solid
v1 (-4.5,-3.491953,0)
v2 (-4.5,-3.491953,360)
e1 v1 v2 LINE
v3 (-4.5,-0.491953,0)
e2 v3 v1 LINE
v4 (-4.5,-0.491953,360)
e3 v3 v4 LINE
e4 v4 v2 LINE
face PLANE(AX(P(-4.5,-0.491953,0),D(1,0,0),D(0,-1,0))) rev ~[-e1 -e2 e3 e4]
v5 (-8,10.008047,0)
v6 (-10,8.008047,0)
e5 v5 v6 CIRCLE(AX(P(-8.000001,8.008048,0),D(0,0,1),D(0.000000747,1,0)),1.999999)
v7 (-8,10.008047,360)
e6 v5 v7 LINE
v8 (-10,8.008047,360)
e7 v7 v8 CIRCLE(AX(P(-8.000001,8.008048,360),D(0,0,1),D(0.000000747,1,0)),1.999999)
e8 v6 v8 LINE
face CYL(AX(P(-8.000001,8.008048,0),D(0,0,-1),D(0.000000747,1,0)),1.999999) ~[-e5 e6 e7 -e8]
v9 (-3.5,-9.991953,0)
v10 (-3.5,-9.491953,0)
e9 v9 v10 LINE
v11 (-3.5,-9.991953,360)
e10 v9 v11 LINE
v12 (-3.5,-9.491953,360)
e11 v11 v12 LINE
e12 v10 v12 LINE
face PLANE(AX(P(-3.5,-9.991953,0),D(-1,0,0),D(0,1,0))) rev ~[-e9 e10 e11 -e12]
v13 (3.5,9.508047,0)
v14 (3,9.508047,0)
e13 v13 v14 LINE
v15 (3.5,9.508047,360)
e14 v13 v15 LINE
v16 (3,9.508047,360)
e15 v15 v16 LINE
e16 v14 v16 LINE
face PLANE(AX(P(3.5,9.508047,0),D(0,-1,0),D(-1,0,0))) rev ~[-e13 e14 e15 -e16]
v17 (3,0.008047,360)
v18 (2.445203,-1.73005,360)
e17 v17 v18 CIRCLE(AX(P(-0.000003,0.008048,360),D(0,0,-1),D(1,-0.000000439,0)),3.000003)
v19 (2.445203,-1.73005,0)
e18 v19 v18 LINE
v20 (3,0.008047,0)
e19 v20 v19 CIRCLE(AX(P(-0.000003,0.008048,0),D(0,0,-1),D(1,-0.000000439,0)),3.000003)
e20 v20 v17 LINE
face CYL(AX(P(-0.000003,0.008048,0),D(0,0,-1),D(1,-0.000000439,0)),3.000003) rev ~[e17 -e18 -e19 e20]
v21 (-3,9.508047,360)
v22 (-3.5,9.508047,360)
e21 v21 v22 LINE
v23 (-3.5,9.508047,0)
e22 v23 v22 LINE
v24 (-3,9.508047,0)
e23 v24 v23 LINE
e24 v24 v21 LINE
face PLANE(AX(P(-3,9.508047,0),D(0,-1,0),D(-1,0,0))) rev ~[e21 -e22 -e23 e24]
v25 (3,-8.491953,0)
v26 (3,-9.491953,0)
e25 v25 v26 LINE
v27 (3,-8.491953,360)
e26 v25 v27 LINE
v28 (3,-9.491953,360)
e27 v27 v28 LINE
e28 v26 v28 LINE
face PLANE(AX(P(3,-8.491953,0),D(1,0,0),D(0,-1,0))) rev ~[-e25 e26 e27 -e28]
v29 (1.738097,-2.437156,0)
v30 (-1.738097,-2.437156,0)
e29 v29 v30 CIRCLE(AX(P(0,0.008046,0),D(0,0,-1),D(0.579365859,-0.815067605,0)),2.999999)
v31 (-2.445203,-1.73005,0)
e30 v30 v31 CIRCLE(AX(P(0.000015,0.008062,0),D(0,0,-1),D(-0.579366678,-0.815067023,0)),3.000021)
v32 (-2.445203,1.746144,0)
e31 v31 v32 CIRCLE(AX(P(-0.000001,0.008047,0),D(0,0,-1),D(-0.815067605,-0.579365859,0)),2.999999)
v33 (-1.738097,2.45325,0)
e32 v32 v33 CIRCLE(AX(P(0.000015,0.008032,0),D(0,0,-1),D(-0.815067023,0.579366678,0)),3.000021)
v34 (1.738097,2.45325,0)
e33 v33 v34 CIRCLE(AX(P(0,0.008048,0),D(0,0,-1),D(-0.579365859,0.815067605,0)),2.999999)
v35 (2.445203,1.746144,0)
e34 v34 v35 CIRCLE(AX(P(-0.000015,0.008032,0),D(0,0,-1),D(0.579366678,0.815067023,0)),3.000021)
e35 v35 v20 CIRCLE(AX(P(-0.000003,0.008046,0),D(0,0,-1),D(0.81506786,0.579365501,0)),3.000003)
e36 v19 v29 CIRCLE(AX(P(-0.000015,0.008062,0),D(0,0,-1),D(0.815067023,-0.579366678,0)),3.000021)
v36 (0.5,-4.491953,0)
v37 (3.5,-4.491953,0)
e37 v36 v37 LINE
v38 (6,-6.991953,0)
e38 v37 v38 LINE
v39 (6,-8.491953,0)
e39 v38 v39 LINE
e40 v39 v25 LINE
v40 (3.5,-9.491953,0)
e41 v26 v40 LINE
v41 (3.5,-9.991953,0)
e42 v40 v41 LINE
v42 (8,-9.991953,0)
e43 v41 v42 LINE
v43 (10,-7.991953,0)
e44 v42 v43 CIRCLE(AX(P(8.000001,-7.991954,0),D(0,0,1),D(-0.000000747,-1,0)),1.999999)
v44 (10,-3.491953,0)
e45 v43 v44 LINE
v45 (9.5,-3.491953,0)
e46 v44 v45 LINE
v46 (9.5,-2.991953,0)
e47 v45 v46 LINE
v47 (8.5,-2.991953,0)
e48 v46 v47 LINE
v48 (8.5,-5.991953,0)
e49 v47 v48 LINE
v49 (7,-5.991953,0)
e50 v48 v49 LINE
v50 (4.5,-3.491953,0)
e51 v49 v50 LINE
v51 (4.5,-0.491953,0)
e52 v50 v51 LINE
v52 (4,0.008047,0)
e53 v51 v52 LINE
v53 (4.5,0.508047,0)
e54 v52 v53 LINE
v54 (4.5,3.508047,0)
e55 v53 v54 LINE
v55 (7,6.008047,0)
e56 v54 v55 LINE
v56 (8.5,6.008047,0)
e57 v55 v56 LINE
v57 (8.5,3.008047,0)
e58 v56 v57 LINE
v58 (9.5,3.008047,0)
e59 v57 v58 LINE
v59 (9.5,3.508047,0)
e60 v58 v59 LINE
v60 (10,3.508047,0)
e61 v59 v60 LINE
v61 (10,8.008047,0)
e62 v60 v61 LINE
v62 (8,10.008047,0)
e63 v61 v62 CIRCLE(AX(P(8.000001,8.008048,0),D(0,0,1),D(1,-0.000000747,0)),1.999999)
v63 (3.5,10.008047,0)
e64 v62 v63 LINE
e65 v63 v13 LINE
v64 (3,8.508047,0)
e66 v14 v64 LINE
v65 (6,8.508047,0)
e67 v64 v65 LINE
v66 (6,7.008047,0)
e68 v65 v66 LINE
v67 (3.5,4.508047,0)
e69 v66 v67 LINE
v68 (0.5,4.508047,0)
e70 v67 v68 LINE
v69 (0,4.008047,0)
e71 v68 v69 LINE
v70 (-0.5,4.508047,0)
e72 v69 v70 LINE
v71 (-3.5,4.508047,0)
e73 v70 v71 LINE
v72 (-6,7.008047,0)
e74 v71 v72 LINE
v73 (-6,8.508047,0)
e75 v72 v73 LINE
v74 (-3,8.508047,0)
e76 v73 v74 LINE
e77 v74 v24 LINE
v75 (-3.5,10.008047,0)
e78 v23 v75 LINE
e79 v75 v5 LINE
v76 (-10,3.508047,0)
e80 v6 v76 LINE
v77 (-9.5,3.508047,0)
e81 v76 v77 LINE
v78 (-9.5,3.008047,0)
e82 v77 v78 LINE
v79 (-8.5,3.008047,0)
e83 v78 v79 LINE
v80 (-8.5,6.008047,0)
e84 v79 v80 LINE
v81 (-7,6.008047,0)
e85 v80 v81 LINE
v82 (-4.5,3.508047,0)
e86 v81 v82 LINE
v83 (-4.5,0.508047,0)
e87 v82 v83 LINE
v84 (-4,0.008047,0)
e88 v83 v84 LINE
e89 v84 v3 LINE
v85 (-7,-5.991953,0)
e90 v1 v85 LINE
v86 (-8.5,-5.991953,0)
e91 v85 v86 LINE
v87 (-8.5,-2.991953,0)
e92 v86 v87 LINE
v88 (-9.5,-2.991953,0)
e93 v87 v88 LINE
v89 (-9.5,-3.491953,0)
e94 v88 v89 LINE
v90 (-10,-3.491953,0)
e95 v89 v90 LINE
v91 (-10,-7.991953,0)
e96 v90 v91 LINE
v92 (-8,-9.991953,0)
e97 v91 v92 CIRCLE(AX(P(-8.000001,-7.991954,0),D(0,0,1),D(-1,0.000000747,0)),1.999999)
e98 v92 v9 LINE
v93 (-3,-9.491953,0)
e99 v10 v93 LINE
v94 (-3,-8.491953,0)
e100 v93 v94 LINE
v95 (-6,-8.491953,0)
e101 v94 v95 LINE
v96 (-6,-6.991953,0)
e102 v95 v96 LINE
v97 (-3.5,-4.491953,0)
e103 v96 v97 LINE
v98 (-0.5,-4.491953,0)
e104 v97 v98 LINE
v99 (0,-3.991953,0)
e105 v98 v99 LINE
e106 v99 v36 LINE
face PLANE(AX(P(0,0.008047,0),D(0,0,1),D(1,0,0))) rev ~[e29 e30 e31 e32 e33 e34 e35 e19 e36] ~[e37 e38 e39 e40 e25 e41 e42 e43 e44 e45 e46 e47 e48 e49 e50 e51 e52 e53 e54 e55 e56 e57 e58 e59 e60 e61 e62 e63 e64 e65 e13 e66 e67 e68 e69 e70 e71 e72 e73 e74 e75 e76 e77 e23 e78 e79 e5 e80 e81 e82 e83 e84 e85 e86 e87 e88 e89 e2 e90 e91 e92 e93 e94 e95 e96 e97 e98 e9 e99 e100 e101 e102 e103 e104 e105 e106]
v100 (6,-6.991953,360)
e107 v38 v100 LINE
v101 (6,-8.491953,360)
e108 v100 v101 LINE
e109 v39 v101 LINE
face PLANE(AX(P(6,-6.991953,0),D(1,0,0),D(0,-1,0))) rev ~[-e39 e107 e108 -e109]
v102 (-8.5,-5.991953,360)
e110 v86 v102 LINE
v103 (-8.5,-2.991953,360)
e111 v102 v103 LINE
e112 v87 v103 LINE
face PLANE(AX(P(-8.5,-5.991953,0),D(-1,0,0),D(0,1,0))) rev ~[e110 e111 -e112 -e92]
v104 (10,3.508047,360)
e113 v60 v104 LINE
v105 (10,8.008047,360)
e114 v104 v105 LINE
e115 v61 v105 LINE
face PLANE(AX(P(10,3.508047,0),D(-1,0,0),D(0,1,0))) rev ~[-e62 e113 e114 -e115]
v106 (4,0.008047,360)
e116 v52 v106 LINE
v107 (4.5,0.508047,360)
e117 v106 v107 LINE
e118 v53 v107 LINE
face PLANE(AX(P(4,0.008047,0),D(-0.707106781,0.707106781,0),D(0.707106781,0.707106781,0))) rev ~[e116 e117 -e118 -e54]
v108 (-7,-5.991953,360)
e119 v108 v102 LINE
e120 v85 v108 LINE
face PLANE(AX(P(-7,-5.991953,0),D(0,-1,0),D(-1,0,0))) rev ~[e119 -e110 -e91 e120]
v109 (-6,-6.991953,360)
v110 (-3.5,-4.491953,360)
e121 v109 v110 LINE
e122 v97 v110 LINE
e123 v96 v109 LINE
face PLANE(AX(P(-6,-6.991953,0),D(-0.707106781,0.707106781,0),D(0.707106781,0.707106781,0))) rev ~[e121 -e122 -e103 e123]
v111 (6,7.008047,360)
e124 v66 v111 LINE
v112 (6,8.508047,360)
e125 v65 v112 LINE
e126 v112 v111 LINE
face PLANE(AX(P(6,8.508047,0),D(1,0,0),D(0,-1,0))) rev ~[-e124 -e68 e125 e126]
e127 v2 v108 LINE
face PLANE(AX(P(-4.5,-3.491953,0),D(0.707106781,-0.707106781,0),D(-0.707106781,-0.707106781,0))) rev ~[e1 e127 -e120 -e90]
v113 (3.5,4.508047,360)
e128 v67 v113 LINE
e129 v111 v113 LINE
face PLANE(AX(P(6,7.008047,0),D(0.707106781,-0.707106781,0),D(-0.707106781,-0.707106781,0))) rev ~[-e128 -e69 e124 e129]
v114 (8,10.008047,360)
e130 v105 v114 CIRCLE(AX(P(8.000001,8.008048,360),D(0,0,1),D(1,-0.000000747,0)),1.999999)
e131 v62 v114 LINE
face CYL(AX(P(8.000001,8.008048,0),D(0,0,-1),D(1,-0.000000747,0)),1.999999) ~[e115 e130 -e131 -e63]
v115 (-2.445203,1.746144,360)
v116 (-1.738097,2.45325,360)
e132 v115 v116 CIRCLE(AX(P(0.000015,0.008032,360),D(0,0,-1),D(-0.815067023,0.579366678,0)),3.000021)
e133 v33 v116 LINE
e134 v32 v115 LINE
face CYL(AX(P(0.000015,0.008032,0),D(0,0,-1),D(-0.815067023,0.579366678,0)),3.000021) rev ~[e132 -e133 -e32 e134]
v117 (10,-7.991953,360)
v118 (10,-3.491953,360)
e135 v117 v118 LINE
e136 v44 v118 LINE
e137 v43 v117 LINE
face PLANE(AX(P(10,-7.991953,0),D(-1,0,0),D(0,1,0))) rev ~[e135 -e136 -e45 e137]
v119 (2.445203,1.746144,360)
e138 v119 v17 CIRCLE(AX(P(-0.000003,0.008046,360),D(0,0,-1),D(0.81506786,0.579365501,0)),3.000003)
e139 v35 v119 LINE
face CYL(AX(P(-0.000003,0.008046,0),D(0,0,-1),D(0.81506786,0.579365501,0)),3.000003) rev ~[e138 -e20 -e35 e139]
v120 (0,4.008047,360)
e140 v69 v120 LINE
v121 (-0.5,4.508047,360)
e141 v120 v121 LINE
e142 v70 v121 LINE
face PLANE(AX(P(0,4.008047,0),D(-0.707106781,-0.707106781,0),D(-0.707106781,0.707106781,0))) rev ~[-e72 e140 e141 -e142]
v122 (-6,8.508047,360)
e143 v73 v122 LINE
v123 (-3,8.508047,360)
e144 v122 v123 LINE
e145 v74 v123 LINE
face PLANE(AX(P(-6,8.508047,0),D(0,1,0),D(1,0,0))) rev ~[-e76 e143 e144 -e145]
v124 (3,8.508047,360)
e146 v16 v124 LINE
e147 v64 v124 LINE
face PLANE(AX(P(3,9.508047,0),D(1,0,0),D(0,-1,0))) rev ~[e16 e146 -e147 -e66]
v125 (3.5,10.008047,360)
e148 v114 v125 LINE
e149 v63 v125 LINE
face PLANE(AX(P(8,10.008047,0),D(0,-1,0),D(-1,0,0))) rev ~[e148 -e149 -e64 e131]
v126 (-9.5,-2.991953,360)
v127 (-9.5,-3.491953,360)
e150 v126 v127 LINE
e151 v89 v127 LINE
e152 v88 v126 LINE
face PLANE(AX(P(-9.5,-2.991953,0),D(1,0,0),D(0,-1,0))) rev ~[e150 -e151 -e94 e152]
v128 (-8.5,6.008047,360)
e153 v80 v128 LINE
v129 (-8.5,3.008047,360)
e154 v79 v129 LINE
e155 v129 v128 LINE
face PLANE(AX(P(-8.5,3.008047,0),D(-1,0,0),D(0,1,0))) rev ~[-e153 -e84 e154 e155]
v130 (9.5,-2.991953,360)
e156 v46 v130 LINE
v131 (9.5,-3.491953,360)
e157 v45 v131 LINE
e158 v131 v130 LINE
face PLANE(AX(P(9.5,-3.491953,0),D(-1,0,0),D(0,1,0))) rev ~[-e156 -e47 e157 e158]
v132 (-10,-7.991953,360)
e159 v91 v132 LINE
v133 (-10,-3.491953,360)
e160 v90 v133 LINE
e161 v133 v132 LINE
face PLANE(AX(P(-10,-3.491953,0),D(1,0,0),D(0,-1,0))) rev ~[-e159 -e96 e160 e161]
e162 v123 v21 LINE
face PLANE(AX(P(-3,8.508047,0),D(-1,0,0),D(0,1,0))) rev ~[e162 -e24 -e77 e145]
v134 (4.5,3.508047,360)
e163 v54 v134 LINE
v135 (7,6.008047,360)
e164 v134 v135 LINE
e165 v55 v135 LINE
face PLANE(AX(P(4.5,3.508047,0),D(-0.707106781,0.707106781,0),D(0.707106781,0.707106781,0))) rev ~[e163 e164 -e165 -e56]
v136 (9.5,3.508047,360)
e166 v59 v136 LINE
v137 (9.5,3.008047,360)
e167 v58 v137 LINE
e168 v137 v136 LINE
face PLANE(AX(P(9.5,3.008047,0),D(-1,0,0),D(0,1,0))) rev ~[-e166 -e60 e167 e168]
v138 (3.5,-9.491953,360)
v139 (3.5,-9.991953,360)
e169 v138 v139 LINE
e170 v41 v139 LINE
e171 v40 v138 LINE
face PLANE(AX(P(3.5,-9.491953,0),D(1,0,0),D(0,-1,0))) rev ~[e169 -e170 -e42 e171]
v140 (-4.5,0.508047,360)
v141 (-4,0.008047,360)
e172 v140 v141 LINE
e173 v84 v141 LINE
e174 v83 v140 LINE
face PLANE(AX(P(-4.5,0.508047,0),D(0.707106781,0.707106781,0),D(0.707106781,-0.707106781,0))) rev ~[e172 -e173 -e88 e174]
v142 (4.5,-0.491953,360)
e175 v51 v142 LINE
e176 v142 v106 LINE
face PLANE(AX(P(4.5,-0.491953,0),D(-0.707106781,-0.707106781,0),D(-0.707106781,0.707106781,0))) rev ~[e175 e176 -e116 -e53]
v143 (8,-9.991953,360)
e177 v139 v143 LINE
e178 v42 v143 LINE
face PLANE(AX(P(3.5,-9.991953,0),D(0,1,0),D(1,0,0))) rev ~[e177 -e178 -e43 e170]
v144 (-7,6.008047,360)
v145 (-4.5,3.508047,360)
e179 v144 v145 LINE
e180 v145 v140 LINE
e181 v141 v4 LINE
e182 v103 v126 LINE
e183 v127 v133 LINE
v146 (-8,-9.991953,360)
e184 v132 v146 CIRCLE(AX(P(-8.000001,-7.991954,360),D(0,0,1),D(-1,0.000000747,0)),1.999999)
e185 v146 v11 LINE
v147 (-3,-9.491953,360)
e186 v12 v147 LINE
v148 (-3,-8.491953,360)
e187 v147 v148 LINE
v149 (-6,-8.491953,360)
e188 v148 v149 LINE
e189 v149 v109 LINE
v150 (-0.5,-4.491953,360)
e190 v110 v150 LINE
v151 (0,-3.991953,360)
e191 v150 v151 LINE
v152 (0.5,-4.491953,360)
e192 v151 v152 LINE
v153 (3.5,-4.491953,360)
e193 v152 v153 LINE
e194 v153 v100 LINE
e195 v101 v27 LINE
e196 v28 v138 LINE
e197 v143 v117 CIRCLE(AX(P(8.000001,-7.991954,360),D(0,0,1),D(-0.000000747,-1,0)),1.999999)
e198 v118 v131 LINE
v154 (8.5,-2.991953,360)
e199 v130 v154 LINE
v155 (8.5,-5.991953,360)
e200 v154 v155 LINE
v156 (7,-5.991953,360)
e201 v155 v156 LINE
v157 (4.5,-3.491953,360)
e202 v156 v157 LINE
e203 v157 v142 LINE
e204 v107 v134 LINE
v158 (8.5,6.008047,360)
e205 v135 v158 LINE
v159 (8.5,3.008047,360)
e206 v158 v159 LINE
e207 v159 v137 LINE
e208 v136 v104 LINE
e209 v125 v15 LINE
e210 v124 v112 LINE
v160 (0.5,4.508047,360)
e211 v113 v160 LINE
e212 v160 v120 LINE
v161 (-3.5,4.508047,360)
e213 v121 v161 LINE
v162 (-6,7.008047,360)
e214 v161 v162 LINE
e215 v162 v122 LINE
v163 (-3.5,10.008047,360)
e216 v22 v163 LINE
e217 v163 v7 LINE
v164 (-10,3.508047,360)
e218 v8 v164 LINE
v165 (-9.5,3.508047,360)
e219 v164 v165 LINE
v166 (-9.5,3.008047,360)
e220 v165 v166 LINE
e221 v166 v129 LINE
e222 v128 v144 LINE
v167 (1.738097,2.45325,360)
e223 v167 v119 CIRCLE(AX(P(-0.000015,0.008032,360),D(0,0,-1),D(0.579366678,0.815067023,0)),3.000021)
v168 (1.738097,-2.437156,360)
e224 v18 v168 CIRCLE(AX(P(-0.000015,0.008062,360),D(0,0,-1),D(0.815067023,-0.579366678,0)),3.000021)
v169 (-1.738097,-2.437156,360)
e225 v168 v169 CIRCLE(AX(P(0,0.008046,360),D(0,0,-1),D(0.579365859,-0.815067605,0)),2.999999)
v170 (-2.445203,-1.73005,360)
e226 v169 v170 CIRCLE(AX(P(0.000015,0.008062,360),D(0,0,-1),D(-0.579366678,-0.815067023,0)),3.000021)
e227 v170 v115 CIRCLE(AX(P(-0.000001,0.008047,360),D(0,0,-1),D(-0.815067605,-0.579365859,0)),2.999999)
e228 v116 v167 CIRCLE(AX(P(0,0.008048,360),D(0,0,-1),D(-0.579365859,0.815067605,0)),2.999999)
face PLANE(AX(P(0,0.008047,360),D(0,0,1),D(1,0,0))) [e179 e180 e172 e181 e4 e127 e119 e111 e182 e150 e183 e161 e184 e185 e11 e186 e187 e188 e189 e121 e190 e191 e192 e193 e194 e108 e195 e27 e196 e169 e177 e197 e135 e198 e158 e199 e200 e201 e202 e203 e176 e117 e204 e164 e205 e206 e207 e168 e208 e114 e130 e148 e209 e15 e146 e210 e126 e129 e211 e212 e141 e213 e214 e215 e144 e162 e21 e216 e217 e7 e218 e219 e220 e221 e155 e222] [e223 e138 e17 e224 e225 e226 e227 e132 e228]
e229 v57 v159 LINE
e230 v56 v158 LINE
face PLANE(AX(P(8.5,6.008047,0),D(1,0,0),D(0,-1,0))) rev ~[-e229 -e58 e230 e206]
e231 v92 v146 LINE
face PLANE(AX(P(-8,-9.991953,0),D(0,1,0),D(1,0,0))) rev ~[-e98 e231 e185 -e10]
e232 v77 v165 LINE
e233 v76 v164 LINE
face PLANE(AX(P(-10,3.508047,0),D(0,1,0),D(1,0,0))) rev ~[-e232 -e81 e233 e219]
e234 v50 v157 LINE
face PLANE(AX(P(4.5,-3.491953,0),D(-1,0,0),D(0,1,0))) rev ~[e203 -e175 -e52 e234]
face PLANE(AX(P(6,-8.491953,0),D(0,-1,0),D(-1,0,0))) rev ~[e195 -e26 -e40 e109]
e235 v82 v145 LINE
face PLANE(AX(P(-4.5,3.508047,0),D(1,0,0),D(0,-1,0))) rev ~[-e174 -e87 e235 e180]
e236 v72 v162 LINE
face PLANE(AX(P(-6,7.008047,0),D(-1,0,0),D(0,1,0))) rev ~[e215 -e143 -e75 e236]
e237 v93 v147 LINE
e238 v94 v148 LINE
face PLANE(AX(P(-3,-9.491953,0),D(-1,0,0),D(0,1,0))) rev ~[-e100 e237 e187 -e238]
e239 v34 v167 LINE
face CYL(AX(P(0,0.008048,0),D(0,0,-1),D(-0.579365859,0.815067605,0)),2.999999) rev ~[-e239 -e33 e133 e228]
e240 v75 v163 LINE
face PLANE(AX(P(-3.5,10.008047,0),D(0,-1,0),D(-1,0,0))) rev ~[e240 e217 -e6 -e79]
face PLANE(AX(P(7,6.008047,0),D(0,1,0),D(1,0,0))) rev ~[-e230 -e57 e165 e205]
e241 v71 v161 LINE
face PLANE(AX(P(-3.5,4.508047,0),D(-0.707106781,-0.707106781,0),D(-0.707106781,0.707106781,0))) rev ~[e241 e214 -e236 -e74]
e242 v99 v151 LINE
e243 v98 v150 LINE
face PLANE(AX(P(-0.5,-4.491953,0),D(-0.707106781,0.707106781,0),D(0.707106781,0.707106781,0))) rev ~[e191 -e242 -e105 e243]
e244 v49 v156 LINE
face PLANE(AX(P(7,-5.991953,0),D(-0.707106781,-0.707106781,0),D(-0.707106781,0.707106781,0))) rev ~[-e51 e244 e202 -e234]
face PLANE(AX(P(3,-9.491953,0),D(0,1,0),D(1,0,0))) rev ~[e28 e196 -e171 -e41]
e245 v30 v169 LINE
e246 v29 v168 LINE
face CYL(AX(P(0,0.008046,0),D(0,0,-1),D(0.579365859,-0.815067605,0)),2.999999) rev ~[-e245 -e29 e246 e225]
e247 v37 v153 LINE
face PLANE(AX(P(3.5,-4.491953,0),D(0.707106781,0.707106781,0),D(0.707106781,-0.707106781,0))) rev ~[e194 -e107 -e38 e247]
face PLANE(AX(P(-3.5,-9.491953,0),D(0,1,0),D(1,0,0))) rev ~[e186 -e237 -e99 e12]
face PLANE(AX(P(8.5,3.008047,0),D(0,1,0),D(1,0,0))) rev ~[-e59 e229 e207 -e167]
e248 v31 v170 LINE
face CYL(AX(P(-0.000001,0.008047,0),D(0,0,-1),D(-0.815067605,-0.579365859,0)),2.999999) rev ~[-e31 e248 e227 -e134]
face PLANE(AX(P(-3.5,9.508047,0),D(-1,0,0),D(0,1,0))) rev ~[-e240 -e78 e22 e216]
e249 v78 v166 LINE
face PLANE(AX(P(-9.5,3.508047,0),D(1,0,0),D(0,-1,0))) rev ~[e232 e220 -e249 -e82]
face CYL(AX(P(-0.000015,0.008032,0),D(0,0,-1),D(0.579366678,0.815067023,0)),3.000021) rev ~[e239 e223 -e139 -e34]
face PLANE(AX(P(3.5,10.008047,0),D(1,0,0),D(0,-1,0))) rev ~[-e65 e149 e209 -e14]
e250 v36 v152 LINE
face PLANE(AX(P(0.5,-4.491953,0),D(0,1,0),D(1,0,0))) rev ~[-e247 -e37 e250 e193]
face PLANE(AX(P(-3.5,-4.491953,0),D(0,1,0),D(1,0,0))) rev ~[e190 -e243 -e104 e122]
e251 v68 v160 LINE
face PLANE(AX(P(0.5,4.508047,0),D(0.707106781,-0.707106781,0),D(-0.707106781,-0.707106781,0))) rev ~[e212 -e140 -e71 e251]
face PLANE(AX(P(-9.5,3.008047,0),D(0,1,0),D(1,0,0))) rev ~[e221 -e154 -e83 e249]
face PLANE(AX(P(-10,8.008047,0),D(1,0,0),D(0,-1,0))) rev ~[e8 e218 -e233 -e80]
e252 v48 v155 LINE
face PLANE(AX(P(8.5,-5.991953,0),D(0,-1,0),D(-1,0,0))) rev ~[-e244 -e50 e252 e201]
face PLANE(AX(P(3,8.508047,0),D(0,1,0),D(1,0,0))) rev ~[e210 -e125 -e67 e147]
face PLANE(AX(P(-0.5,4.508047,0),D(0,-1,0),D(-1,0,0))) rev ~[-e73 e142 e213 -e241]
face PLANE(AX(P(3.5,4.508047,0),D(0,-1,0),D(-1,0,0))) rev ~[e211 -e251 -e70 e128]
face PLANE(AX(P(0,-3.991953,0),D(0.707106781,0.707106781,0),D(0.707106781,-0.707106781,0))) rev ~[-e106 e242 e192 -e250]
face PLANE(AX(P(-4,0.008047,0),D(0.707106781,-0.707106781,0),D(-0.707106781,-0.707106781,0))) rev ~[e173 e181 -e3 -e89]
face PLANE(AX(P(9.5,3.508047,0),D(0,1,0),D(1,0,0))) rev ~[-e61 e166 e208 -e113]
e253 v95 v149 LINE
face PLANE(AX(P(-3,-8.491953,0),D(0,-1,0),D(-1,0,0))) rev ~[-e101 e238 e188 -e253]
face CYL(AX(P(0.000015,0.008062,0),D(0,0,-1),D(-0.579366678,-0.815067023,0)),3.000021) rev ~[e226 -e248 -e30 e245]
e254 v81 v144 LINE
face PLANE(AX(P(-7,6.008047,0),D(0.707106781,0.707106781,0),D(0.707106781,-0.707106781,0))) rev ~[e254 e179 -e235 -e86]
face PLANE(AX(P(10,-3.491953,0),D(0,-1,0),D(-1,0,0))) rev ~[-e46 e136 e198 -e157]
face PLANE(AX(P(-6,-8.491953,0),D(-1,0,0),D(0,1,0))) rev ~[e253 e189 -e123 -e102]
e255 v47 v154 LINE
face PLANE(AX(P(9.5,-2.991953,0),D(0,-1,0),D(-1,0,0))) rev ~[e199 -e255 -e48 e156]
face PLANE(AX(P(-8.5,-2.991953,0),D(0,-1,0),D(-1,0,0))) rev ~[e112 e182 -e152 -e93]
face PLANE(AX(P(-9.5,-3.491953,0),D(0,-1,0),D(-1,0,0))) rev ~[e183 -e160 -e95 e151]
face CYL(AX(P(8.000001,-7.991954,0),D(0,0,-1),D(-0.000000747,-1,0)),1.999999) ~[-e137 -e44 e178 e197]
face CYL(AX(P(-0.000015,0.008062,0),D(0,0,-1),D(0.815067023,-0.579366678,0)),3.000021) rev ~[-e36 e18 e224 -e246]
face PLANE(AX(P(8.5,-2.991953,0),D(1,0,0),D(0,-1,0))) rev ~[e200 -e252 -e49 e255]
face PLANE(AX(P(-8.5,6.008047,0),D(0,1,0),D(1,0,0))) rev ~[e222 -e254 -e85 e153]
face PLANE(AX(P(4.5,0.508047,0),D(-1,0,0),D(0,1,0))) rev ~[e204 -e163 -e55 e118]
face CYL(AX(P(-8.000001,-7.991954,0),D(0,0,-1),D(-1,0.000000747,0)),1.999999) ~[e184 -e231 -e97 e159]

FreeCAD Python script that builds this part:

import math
import FreeCAD as App
import Part
import Sketcher

V = App.Vector
Q = App.Units.Quantity

doc = App.newDocument("Part")
body = doc.addObject("PartDesign::Body", "Body")

sketch1 = doc.addObject("Sketcher::SketchObject", "Sketch")
body.addObject(sketch1)
sketch1.AttachmentSupport = (doc.XY_Plane, [""])
sketch1.MapMode = "FlatFace"
sketch1.addGeometry(Part.ArcOfCircle(Part.Circle(V(-8.000001, -7.991954, 0), V(0, 0, 1), 1.999999), math.radians(179.999957), math.radians(270.000043)), False)
sketch1.addGeometry(Part.LineSegment(V(-8, -9.991953, 0), V(-3.5, -9.991953, 0)), False)
sketch1.addGeometry(Part.LineSegment(V(-3.5, -9.991953, 0), V(-3.5, -9.491953, 0)), False)
sketch1.addGeometry(Part.LineSegment(V(-3.5, -9.491953, 0), V(-3, -9.491953, 0)), False)
sketch1.addGeometry(Part.LineSegment(V(-3, -9.491953, 0), V(-3, -8.491953, 0)), False)
sketch1.addGeometry(Part.LineSegment(V(-3, -8.491953, 0), V(-6, -8.491953, 0)), False)
sketch1.addGeometry(Part.LineSegment(V(-6, -8.491953, 0), V(-6, -6.991953, 0)), False)
sketch1.addGeometry(Part.LineSegment(V(-6, -6.991953, 0), V(-3.5, -4.491953, 0)), False)
sketch1.addGeometry(Part.LineSegment(V(-3.5, -4.491953, 0), V(-0.5, -4.491953, 0)), False)
sketch1.addGeometry(Part.LineSegment(V(-0.5, -4.491953, 0), V(0, -3.991953, 0)), False)
sketch1.addGeometry(Part.LineSegment(V(0, -3.991953, 0), V(0.5, -4.491953, 0)), False)
sketch1.addGeometry(Part.LineSegment(V(0.5, -4.491953, 0), V(3.5, -4.491953, 0)), False)
sketch1.addGeometry(Part.LineSegment(V(3.5, -4.491953, 0), V(6, -6.991953, 0)), False)
sketch1.addGeometry(Part.LineSegment(V(6, -6.991953, 0), V(6, -8.491953, 0)), False)
sketch1.addGeometry(Part.LineSegment(V(6, -8.491953, 0), V(3, -8.491953, 0)), False)
sketch1.addGeometry(Part.LineSegment(V(3, -8.491953, 0), V(3, -9.491953, 0)), False)
sketch1.addGeometry(Part.LineSegment(V(3, -9.491953, 0), V(3.5, -9.491953, 0)), False)
sketch1.addGeometry(Part.LineSegment(V(3.5, -9.491953, 0), V(3.5, -9.991953, 0)), False)
sketch1.addGeometry(Part.LineSegment(V(3.5, -9.991953, 0), V(8, -9.991953, 0)), False)
sketch1.addGeometry(Part.ArcOfCircle(Part.Circle(V(8.000001, -7.991954, 0), V(0, 0, 1), 1.999999), math.radians(-90.000043), math.radians(0.000043)), False)
sketch1.addGeometry(Part.LineSegment(V(10, -7.991953, 0), V(10, -3.491953, 0)), False)
sketch1.addGeometry(Part.LineSegment(V(10, -3.491953, 0), V(9.5, -3.491953, 0)), False)
sketch1.addGeometry(Part.LineSegment(V(9.5, -3.491953, 0), V(9.5, -2.991953, 0)), False)
sketch1.addGeometry(Part.LineSegment(V(9.5, -2.991953, 0), V(8.5, -2.991953, 0)), False)
sketch1.addGeometry(Part.LineSegment(V(8.5, -2.991953, 0), V(8.5, -5.991953, 0)), False)
sketch1.addGeometry(Part.LineSegment(V(8.5, -5.991953, 0), V(7, -5.991953, 0)), False)
sketch1.addGeometry(Part.LineSegment(V(7, -5.991953, 0), V(4.5, -3.491953, 0)), False)
sketch1.addGeometry(Part.LineSegment(V(4.5, -3.491953, 0), V(4.5, -0.491953, 0)), False)
sketch1.addGeometry(Part.LineSegment(V(4.5, -0.491953, 0), V(4, 0.008047, 0)), False)
sketch1.addGeometry(Part.LineSegment(V(4, 0.008047, 0), V(4.5, 0.508047, 0)), False)
sketch1.addGeometry(Part.LineSegment(V(4.5, 0.508047, 0), V(4.5, 3.508047, 0)), False)
sketch1.addGeometry(Part.LineSegment(V(4.5, 3.508047, 0), V(7, 6.008047, 0)), False)
sketch1.addGeometry(Part.LineSegment(V(7, 6.008047, 0), V(8.5, 6.008047, 0)), False)
sketch1.addGeometry(Part.LineSegment(V(8.5, 6.008047, 0), V(8.5, 3.008047, 0)), False)
sketch1.addGeometry(Part.LineSegment(V(8.5, 3.008047, 0), V(9.5, 3.008047, 0)), False)
sketch1.addGeometry(Part.LineSegment(V(9.5, 3.008047, 0), V(9.5, 3.508047, 0)), False)
sketch1.addGeometry(Part.LineSegment(V(9.5, 3.508047, 0), V(10, 3.508047, 0)), False)
sketch1.addGeometry(Part.LineSegment(V(10, 3.508047, 0), V(10, 8.008047, 0)), False)
sketch1.addGeometry(Part.ArcOfCircle(Part.Circle(V(8.000001, 8.008048, 0), V(0, 0, 1), 1.999999), math.radians(-0.000043), math.radians(90.000043)), False)
sketch1.addGeometry(Part.LineSegment(V(8, 10.008047, 0), V(3.5, 10.008047, 0)), False)
sketch1.addGeometry(Part.LineSegment(V(3.5, 10.008047, 0), V(3.5, 9.508047, 0)), False)
sketch1.addGeometry(Part.LineSegment(V(3.5, 9.508047, 0), V(3, 9.508047, 0)), False)
sketch1.addGeometry(Part.LineSegment(V(3, 9.508047, 0), V(3, 8.508047, 0)), False)
sketch1.addGeometry(Part.LineSegment(V(3, 8.508047, 0), V(6, 8.508047, 0)), False)
sketch1.addGeometry(Part.LineSegment(V(6, 8.508047, 0), V(6, 7.008047, 0)), False)
sketch1.addGeometry(Part.LineSegment(V(6, 7.008047, 0), V(3.5, 4.508047, 0)), False)
sketch1.addGeometry(Part.LineSegment(V(3.5, 4.508047, 0), V(0.5, 4.508047, 0)), False)
sketch1.addGeometry(Part.LineSegment(V(0.5, 4.508047, 0), V(0, 4.008047, 0)), False)
sketch1.addGeometry(Part.LineSegment(V(0, 4.008047, 0), V(-0.5, 4.508047, 0)), False)
sketch1.addGeometry(Part.LineSegment(V(-0.5, 4.508047, 0), V(-3.5, 4.508047, 0)), False)
sketch1.addGeometry(Part.LineSegment(V(-3.5, 4.508047, 0), V(-6, 7.008047, 0)), False)
sketch1.addGeometry(Part.LineSegment(V(-6, 7.008047, 0), V(-6, 8.508047, 0)), False)
sketch1.addGeometry(Part.LineSegment(V(-6, 8.508047, 0), V(-3, 8.508047, 0)), False)
sketch1.addGeometry(Part.LineSegment(V(-3, 8.508047, 0), V(-3, 9.508047, 0)), False)
sketch1.addGeometry(Part.LineSegment(V(-3, 9.508047, 0), V(-3.5, 9.508047, 0)), False)
sketch1.addGeometry(Part.LineSegment(V(-3.5, 9.508047, 0), V(-3.5, 10.008047, 0)), False)
sketch1.addGeometry(Part.LineSegment(V(-3.5, 10.008047, 0), V(-8, 10.008047, 0)), False)
sketch1.addGeometry(Part.ArcOfCircle(Part.Circle(V(-8.000001, 8.008048, 0), V(0, 0, 1), 1.999999), math.radians(89.999957), math.radians(180.000043)), False)
sketch1.addGeometry(Part.LineSegment(V(-10, 8.008047, 0), V(-10, 3.508047, 0)), False)
sketch1.addGeometry(Part.LineSegment(V(-10, 3.508047, 0), V(-9.5, 3.508047, 0)), False)
sketch1.addGeometry(Part.LineSegment(V(-9.5, 3.508047, 0), V(-9.5, 3.008047, 0)), False)
sketch1.addGeometry(Part.LineSegment(V(-9.5, 3.008047, 0), V(-8.5, 3.008047, 0)), False)
sketch1.addGeometry(Part.LineSegment(V(-8.5, 3.008047, 0), V(-8.5, 6.008047, 0)), False)
sketch1.addGeometry(Part.LineSegment(V(-8.5, 6.008047, 0), V(-7, 6.008047, 0)), False)
sketch1.addGeometry(Part.LineSegment(V(-7, 6.008047, 0), V(-4.5, 3.508047, 0)), False)
sketch1.addGeometry(Part.LineSegment(V(-4.5, 3.508047, 0), V(-4.5, 0.508047, 0)), False)
sketch1.addGeometry(Part.LineSegment(V(-4.5, 0.508047, 0), V(-4, 0.008047, 0)), False)
sketch1.addGeometry(Part.LineSegment(V(-4, 0.008047, 0), V(-4.5, -0.491953, 0)), False)
sketch1.addGeometry(Part.LineSegment(V(-4.5, -0.491953, 0), V(-4.5, -3.491953, 0)), False)
sketch1.addGeometry(Part.LineSegment(V(-4.5, -3.491953, 0), V(-7, -5.991953, 0)), False)
sketch1.addGeometry(Part.LineSegment(V(-7, -5.991953, 0), V(-8.5, -5.991953, 0)), False)
sketch1.addGeometry(Part.LineSegment(V(-8.5, -5.991953, 0), V(-8.5, -2.991953, 0)), False)
sketch1.addGeometry(Part.LineSegment(V(-8.5, -2.991953, 0), V(-9.5, -2.991953, 0)), False)
sketch1.addGeometry(Part.LineSegment(V(-9.5, -2.991953, 0), V(-9.5, -3.491953, 0)), False)
sketch1.addGeometry(Part.LineSegment(V(-9.5, -3.491953, 0), V(-10, -3.491953, 0)), False)
sketch1.addGeometry(Part.LineSegment(V(-10, -3.491953, 0), V(-10, -7.991953, 0)), False)
sketch1.addGeometry(Part.ArcOfCircle(Part.Circle(V(-0.000015, 0.008032, 0), V(0, 0, 1), 3.000021), math.radians(35.40601), math.radians(54.59399)), False)
sketch1.addGeometry(Part.ArcOfCircle(Part.Circle(V(-0.000003, 0.008046, 0), V(0, 0, 1), 3.000003), math.radians(0.000025), math.radians(35.405928)), False)
sketch1.addGeometry(Part.ArcOfCircle(Part.Circle(V(-0.000003, 0.008048, 0), V(0, 0, 1), 3.000003), math.radians(-35.405928), math.radians(-0.000025)), False)
sketch1.addGeometry(Part.ArcOfCircle(Part.Circle(V(-0.000015, 0.008062, 0), V(0, 0, 1), 3.000021), math.radians(-54.59399), math.radians(-35.40601)), False)
sketch1.addGeometry(Part.ArcOfCircle(Part.Circle(V(0, 0.008046, 0), V(0, 0, 1), 2.999999), math.radians(-125.405953), math.radians(-54.594047)), False)
sketch1.addGeometry(Part.ArcOfCircle(Part.Circle(V(0.000015, 0.008062, 0), V(0, 0, 1), 3.000021), math.radians(-144.59399), math.radians(-125.40601)), False)
sketch1.addGeometry(Part.ArcOfCircle(Part.Circle(V(-0.000001, 0.008047, 0), V(0, 0, 1), 2.999999), math.radians(144.594047), math.radians(215.405953)), False)
sketch1.addGeometry(Part.ArcOfCircle(Part.Circle(V(0.000015, 0.008032, 0), V(0, 0, 1), 3.000021), math.radians(125.40601), math.radians(144.59399)), False)
sketch1.addGeometry(Part.ArcOfCircle(Part.Circle(V(0, 0.008048, 0), V(0, 0, 1), 2.999999), math.radians(54.594047), math.radians(125.405953)), False)
sketch1.addConstraint(Sketcher.Constraint("Coincident", 0, 2, 1, 1))
sketch1.addConstraint(Sketcher.Constraint("Coincident", 1, 2, 2, 1))
sketch1.addConstraint(Sketcher.Constraint("Coincident", 2, 2, 3, 1))
sketch1.addConstraint(Sketcher.Constraint("Coincident", 3, 2, 4, 1))
sketch1.addConstraint(Sketcher.Constraint("Coincident", 4, 2, 5, 1))
sketch1.addConstraint(Sketcher.Constraint("Coincident", 5, 2, 6, 1))
sketch1.addConstraint(Sketcher.Constraint("Coincident", 6, 2, 7, 1))
sketch1.addConstraint(Sketcher.Constraint("Coincident", 7, 2, 8, 1))
sketch1.addConstraint(Sketcher.Constraint("Coincident", 8, 2, 9, 1))
sketch1.addConstraint(Sketcher.Constraint("Coincident", 9, 2, 10, 1))
sketch1.addConstraint(Sketcher.Constraint("Coincident", 10, 2, 11, 1))
sketch1.addConstraint(Sketcher.Constraint("Coincident", 11, 2, 12, 1))
sketch1.addConstraint(Sketcher.Constraint("Coincident", 12, 2, 13, 1))
sketch1.addConstraint(Sketcher.Constraint("Coincident", 13, 2, 14, 1))
sketch1.addConstraint(Sketcher.Constraint("Coincident", 14, 2, 15, 1))
sketch1.addConstraint(Sketcher.Constraint("Coincident", 15, 2, 16, 1))
sketch1.addConstraint(Sketcher.Constraint("Coincident", 16, 2, 17, 1))
sketch1.addConstraint(Sketcher.Constraint("Coincident", 17, 2, 18, 1))
sketch1.addConstraint(Sketcher.Constraint("Coincident", 18, 2, 19, 1))
sketch1.addConstraint(Sketcher.Constraint("Coincident", 19, 2, 20, 1))
sketch1.addConstraint(Sketcher.Constraint("Coincident", 20, 2, 21, 1))
sketch1.addConstraint(Sketcher.Constraint("Coincident", 21, 2, 22, 1))
sketch1.addConstraint(Sketcher.Constraint("Coincident", 22, 2, 23, 1))
sketch1.addConstraint(Sketcher.Constraint("Coincident", 23, 2, 24, 1))
sketch1.addConstraint(Sketcher.Constraint("Coincident", 24, 2, 25, 1))
sketch1.addConstraint(Sketcher.Constraint("Coincident", 25, 2, 26, 1))
sketch1.addConstraint(Sketcher.Constraint("Coincident", 26, 2, 27, 1))
sketch1.addConstraint(Sketcher.Constraint("Coincident", 27, 2, 28, 1))
sketch1.addConstraint(Sketcher.Constraint("Coincident", 28, 2, 29, 1))
sketch1.addConstraint(Sketcher.Constraint("Coincident", 29, 2, 30, 1))
sketch1.addConstraint(Sketcher.Constraint("Coincident", 30, 2, 31, 1))
sketch1.addConstraint(Sketcher.Constraint("Coincident", 31, 2, 32, 1))
sketch1.addConstraint(Sketcher.Constraint("Coincident", 32, 2, 33, 1))
sketch1.addConstraint(Sketcher.Constraint("Coincident", 33, 2, 34, 1))
sketch1.addConstraint(Sketcher.Constraint("Coincident", 34, 2, 35, 1))
sketch1.addConstraint(Sketcher.Constraint("Coincident", 35, 2, 36, 1))
sketch1.addConstraint(Sketcher.Constraint("Coincident", 36, 2, 37, 1))
sketch1.addConstraint(Sketcher.Constraint("Coincident", 37, 2, 38, 1))
sketch1.addConstraint(Sketcher.Constraint("Coincident", 38, 2, 39, 1))
sketch1.addConstraint(Sketcher.Constraint("Coincident", 39, 2, 40, 1))
sketch1.addConstraint(Sketcher.Constraint("Coincident", 40, 2, 41, 1))
sketch1.addConstraint(Sketcher.Constraint("Coincident", 41, 2, 42, 1))
sketch1.addConstraint(Sketcher.Constraint("Coincident", 42, 2, 43, 1))
sketch1.addConstraint(Sketcher.Constraint("Coincident", 43, 2, 44, 1))
sketch1.addConstraint(Sketcher.Constraint("Coincident", 44, 2, 45, 1))
sketch1.addConstraint(Sketcher.Constraint("Coincident", 45, 2, 46, 1))
sketch1.addConstraint(Sketcher.Constraint("Coincident", 46, 2, 47, 1))
sketch1.addConstraint(Sketcher.Constraint("Coincident", 47, 2, 48, 1))
sketch1.addConstraint(Sketcher.Constraint("Coincident", 48, 2, 49, 1))
sketch1.addConstraint(Sketcher.Constraint("Coincident", 49, 2, 50, 1))
sketch1.addConstraint(Sketcher.Constraint("Coincident", 50, 2, 51, 1))
sketch1.addConstraint(Sketcher.Constraint("Coincident", 51, 2, 52, 1))
sketch1.addConstraint(Sketcher.Constraint("Coincident", 52, 2, 53, 1))
sketch1.addConstraint(Sketcher.Constraint("Coincident", 53, 2, 54, 1))
sketch1.addConstraint(Sketcher.Constraint("Coincident", 54, 2, 55, 1))
sketch1.addConstraint(Sketcher.Constraint("Coincident", 55, 2, 56, 1))
sketch1.addConstraint(Sketcher.Constraint("Coincident", 56, 2, 57, 1))
sketch1.addConstraint(Sketcher.Constraint("Coincident", 57, 2, 58, 1))
sketch1.addConstraint(Sketcher.Constraint("Coincident", 58, 2, 59, 1))
sketch1.addConstraint(Sketcher.Constraint("Coincident", 59, 2, 60, 1))
sketch1.addConstraint(Sketcher.Constraint("Coincident", 60, 2, 61, 1))
sketch1.addConstraint(Sketcher.Constraint("Coincident", 61, 2, 62, 1))
sketch1.addConstraint(Sketcher.Constraint("Coincident", 62, 2, 63, 1))
sketch1.addConstraint(Sketcher.Constraint("Coincident", 63, 2, 64, 1))
sketch1.addConstraint(Sketcher.Constraint("Coincident", 64, 2, 65, 1))
sketch1.addConstraint(Sketcher.Constraint("Coincident", 65, 2, 66, 1))
sketch1.addConstraint(Sketcher.Constraint("Coincident", 66, 2, 67, 1))
sketch1.addConstraint(Sketcher.Constraint("Coincident", 67, 2, 68, 1))
sketch1.addConstraint(Sketcher.Constraint("Coincident", 68, 2, 69, 1))
sketch1.addConstraint(Sketcher.Constraint("Coincident", 69, 2, 70, 1))
sketch1.addConstraint(Sketcher.Constraint("Coincident", 70, 2, 71, 1))
sketch1.addConstraint(Sketcher.Constraint("Coincident", 71, 2, 72, 1))
sketch1.addConstraint(Sketcher.Constraint("Coincident", 72, 2, 73, 1))
sketch1.addConstraint(Sketcher.Constraint("Coincident", 73, 2, 74, 1))
sketch1.addConstraint(Sketcher.Constraint("Coincident", 74, 2, 75, 1))
sketch1.addConstraint(Sketcher.Constraint("Coincident", 75, 2, 0, 1))
sketch1.addConstraint(Sketcher.Constraint("Coincident", 76, 1, 77, 2))
sketch1.addConstraint(Sketcher.Constraint("Coincident", 77, 1, 78, 2))
sketch1.addConstraint(Sketcher.Constraint("Coincident", 78, 1, 79, 2))
sketch1.addConstraint(Sketcher.Constraint("Coincident", 79, 1, 80, 2))
sketch1.addConstraint(Sketcher.Constraint("Coincident", 80, 1, 81, 2))
sketch1.addConstraint(Sketcher.Constraint("Coincident", 81, 1, 82, 2))
sketch1.addConstraint(Sketcher.Constraint("Coincident", 82, 1, 83, 2))
sketch1.addConstraint(Sketcher.Constraint("Coincident", 83, 1, 84, 2))
sketch1.addConstraint(Sketcher.Constraint("Coincident", 84, 1, 76, 2))
sketch1.addConstraint(Sketcher.Constraint("Horizontal", 1))
sketch1.addConstraint(Sketcher.Constraint("Vertical", 2))
sketch1.addConstraint(Sketcher.Constraint("Horizontal", 3))
sketch1.addConstraint(Sketcher.Constraint("Vertical", 4))
sketch1.addConstraint(Sketcher.Constraint("Horizontal", 5))
sketch1.addConstraint(Sketcher.Constraint("Vertical", 6))
sketch1.addConstraint(Sketcher.Constraint("Horizontal", 8))
sketch1.addConstraint(Sketcher.Constraint("Horizontal", 11))
sketch1.addConstraint(Sketcher.Constraint("Vertical", 13))
sketch1.addConstraint(Sketcher.Constraint("Horizontal", 14))
sketch1.addConstraint(Sketcher.Constraint("Vertical", 15))
sketch1.addConstraint(Sketcher.Constraint("Horizontal", 16))
sketch1.addConstraint(Sketcher.Constraint("Vertical", 17))
sketch1.addConstraint(Sketcher.Constraint("Horizontal", 18))
sketch1.addConstraint(Sketcher.Constraint("Vertical", 20))
sketch1.addConstraint(Sketcher.Constraint("Horizontal", 21))
sketch1.addConstraint(Sketcher.Constraint("Vertical", 22))
sketch1.addConstraint(Sketcher.Constraint("Horizontal", 23))
sketch1.addConstraint(Sketcher.Constraint("Vertical", 24))
sketch1.addConstraint(Sketcher.Constraint("Horizontal", 25))
sketch1.addConstraint(Sketcher.Constraint("Vertical", 27))
sketch1.addConstraint(Sketcher.Constraint("Vertical", 30))
sketch1.addConstraint(Sketcher.Constraint("Horizontal", 32))
sketch1.addConstraint(Sketcher.Constraint("Vertical", 33))
sketch1.addConstraint(Sketcher.Constraint("Horizontal", 34))
sketch1.addConstraint(Sketcher.Constraint("Vertical", 35))
sketch1.addConstraint(Sketcher.Constraint("Horizontal", 36))
sketch1.addConstraint(Sketcher.Constraint("Vertical", 37))
sketch1.addConstraint(Sketcher.Constraint("Horizontal", 39))
sketch1.addConstraint(Sketcher.Constraint("Vertical", 40))
sketch1.addConstraint(Sketcher.Constraint("Horizontal", 41))
sketch1.addConstraint(Sketcher.Constraint("Vertical", 42))
sketch1.addConstraint(Sketcher.Constraint("Horizontal", 43))
sketch1.addConstraint(Sketcher.Constraint("Vertical", 44))
sketch1.addConstraint(Sketcher.Constraint("Horizontal", 46))
sketch1.addConstraint(Sketcher.Constraint("Horizontal", 49))
sketch1.addConstraint(Sketcher.Constraint("Vertical", 51))
sketch1.addConstraint(Sketcher.Constraint("Horizontal", 52))
sketch1.addConstraint(Sketcher.Constraint("Vertical", 53))
sketch1.addConstraint(Sketcher.Constraint("Horizontal", 54))
sketch1.addConstraint(Sketcher.Constraint("Vertical", 55))
sketch1.addConstraint(Sketcher.Constraint("Horizontal", 56))
sketch1.addConstraint(Sketcher.Constraint("Vertical", 58))
sketch1.addConstraint(Sketcher.Constraint("Horizontal", 59))
sketch1.addConstraint(Sketcher.Constraint("Vertical", 60))
sketch1.addConstraint(Sketcher.Constraint("Horizontal", 61))
sketch1.addConstraint(Sketcher.Constraint("Vertical", 62))
sketch1.addConstraint(Sketcher.Constraint("Horizontal", 63))
sketch1.addConstraint(Sketcher.Constraint("Vertical", 65))
sketch1.addConstraint(Sketcher.Constraint("Vertical", 68))
sketch1.addConstraint(Sketcher.Constraint("Horizontal", 70))
sketch1.addConstraint(Sketcher.Constraint("Vertical", 71))
sketch1.addConstraint(Sketcher.Constraint("Horizontal", 72))
sketch1.addConstraint(Sketcher.Constraint("Vertical", 73))
sketch1.addConstraint(Sketcher.Constraint("Horizontal", 74))
sketch1.addConstraint(Sketcher.Constraint("Vertical", 75))
sketch1.addConstraint(Sketcher.Constraint("Coincident", 78, 3, 77, 3))
sketch1.addConstraint(Sketcher.Constraint("Coincident", 80, 3, 77, 3))
sketch1.addConstraint(Sketcher.Constraint("Coincident", 82, 3, 77, 3))
sketch1.addConstraint(Sketcher.Constraint("Coincident", 84, 3, 77, 3))
sketch1.addConstraint(Sketcher.Constraint("PointOnObject", 80, 3, -2))
sketch1.addConstraint(Sketcher.Constraint("PointOnObject", 9, 2, -2))
sketch1.addConstraint(Sketcher.Constraint("PointOnObject", 47, 2, -2))
sketch1.addConstraint(Sketcher.Constraint("Radius", 0, Q("1.999999 mm")))
sketch1.addConstraint(Sketcher.Constraint("Radius", 19, Q("1.999999 mm")))
sketch1.addConstraint(Sketcher.Constraint("Radius", 38, Q("1.999999 mm")))
sketch1.addConstraint(Sketcher.Constraint("Radius", 57, Q("1.999999 mm")))
sketch1.addConstraint(Sketcher.Constraint("Radius", 80, Q("2.999999 mm")))
sketch1.addConstraint(Sketcher.Constraint("Radius", 82, Q("2.999999 mm")))
sketch1.addConstraint(Sketcher.Constraint("Radius", 84, Q("2.999999 mm")))
sketch1.addConstraint(Sketcher.Constraint("DistanceX", 5, 2, 5, 1, Q("3 mm")))
sketch1.addConstraint(Sketcher.Constraint("DistanceX", 8, 1, 8, 2, Q("3 mm")))
sketch1.addConstraint(Sketcher.Constraint("DistanceX", 11, 1, 11, 2, Q("3 mm")))
sketch1.addConstraint(Sketcher.Constraint("DistanceX", 14, 2, 14, 1, Q("3 mm")))
sketch1.addConstraint(Sketcher.Constraint("DistanceX", 23, 2, 23, 1, Q("1 mm")))
sketch1.addConstraint(Sketcher.Constraint("DistanceX", 34, 1, 34, 2, Q("1 mm")))
sketch1.addConstraint(Sketcher.Constraint("DistanceX", 43, 1, 43, 2, Q("3 mm")))
sketch1.addConstraint(Sketcher.Constraint("DistanceX", 46, 2, 46, 1, Q("3 mm")))
sketch1.addConstraint(Sketcher.Constraint("DistanceX", 49, 2, 49, 1, Q("3 mm")))
sketch1.addConstraint(Sketcher.Constraint("DistanceX", 52, 1, 52, 2, Q("3 mm")))
sketch1.addConstraint(Sketcher.Constraint("DistanceX", 61, 1, 61, 2, Q("1 mm")))
sketch1.addConstraint(Sketcher.Constraint("DistanceX", 72, 2, 72, 1, Q("1 mm")))
sketch1.addConstraint(Sketcher.Constraint("DistanceY", 4, 1, 4, 2, Q("1 mm")))
sketch1.addConstraint(Sketcher.Constraint("DistanceY", 15, 2, 15, 1, Q("1 mm")))
sketch1.addConstraint(Sketcher.Constraint("DistanceY", 24, 2, 24, 1, Q("3 mm")))
sketch1.addConstraint(Sketcher.Constraint("DistanceY", 27, 1, 27, 2, Q("3 mm")))
sketch1.addConstraint(Sketcher.Constraint("DistanceY", 30, 1, 30, 2, Q("3 mm")))
sketch1.addConstraint(Sketcher.Constraint("DistanceY", 33, 2, 33, 1, Q("3 mm")))
sketch1.addConstraint(Sketcher.Constraint("DistanceY", 42, 2, 42, 1, Q("1 mm")))
sketch1.addConstraint(Sketcher.Constraint("DistanceY", 53, 1, 53, 2, Q("1 mm")))
sketch1.addConstraint(Sketcher.Constraint("DistanceY", 62, 1, 62, 2, Q("3 mm")))
sketch1.addConstraint(Sketcher.Constraint("DistanceY", 65, 2, 65, 1, Q("3 mm")))
sketch1.addConstraint(Sketcher.Constraint("DistanceY", 68, 2, 68, 1, Q("3 mm")))
sketch1.addConstraint(Sketcher.Constraint("DistanceY", 71, 1, 71, 2, Q("3 mm")))
sketch1.addConstraint(Sketcher.Constraint("DistanceX", 1, 1, 1, 2, Q("4.5 mm")))
sketch1.addConstraint(Sketcher.Constraint("DistanceX", 3, 1, 3, 2, Q("0.5 mm")))
sketch1.addConstraint(Sketcher.Constraint("DistanceX", 16, 1, 16, 2, Q("0.5 mm")))
sketch1.addConstraint(Sketcher.Constraint("DistanceX", 18, 1, 18, 2, Q("4.5 mm")))
sketch1.addConstraint(Sketcher.Constraint("DistanceX", 21, 2, 21, 1, Q("0.5 mm")))
sketch1.addConstraint(Sketcher.Constraint("DistanceX", 25, 2, 25, 1, Q("1.5 mm")))
sketch1.addConstraint(Sketcher.Constraint("DistanceX", 32, 1, 32, 2, Q("1.5 mm")))
sketch1.addConstraint(Sketcher.Constraint("DistanceX", 36, 1, 36, 2, Q("0.5 mm")))
sketch1.addConstraint(Sketcher.Constraint("DistanceX", 39, 2, 39, 1, Q("4.5 mm")))
sketch1.addConstraint(Sketcher.Constraint("DistanceX", 41, 2, 41, 1, Q("0.5 mm")))
sketch1.addConstraint(Sketcher.Constraint("DistanceX", 54, 2, 54, 1, Q("0.5 mm")))
sketch1.addConstraint(Sketcher.Constraint("DistanceX", 56, 2, 56, 1, Q("4.5 mm")))
sketch1.addConstraint(Sketcher.Constraint("DistanceX", 59, 1, 59, 2, Q("0.5 mm")))
sketch1.addConstraint(Sketcher.Constraint("DistanceX", 63, 1, 63, 2, Q("1.5 mm")))
sketch1.addConstraint(Sketcher.Constraint("DistanceX", 70, 2, 70, 1, Q("1.5 mm")))
sketch1.addConstraint(Sketcher.Constraint("DistanceX", 74, 2, 74, 1, Q("0.5 mm")))
sketch1.addConstraint(Sketcher.Constraint("DistanceY", 2, 1, 2, 2, Q("0.5 mm")))
sketch1.addConstraint(Sketcher.Constraint("DistanceY", 6, 1, 6, 2, Q("1.5 mm")))
sketch1.addConstraint(Sketcher.Constraint("DistanceY", 13, 2, 13, 1, Q("1.5 mm")))
sketch1.addConstraint(Sketcher.Constraint("DistanceY", 17, 2, 17, 1, Q("0.5 mm")))
sketch1.addConstraint(Sketcher.Constraint("DistanceY", 20, 1, 20, 2, Q("4.5 mm")))
sketch1.addConstraint(Sketcher.Constraint("DistanceY", 22, 1, 22, 2, Q("0.5 mm")))
sketch1.addConstraint(Sketcher.Constraint("DistanceY", 35, 1, 35, 2, Q("0.5 mm")))
sketch1.addConstraint(Sketcher.Constraint("DistanceY", 37, 1, 37, 2, Q("4.5 mm")))
sketch1.addConstraint(Sketcher.Constraint("DistanceY", 40, 2, 40, 1, Q("0.5 mm")))
sketch1.addConstraint(Sketcher.Constraint("DistanceY", 44, 2, 44, 1, Q("1.5 mm")))
sketch1.addConstraint(Sketcher.Constraint("DistanceY", 51, 1, 51, 2, Q("1.5 mm")))
sketch1.addConstraint(Sketcher.Constraint("DistanceY", 55, 1, 55, 2, Q("0.5 mm")))
sketch1.addConstraint(Sketcher.Constraint("DistanceY", 58, 2, 58, 1, Q("4.5 mm")))
sketch1.addConstraint(Sketcher.Constraint("DistanceY", 60, 2, 60, 1, Q("0.5 mm")))
sketch1.addConstraint(Sketcher.Constraint("DistanceY", 73, 2, 73, 1, Q("0.5 mm")))
sketch1.addConstraint(Sketcher.Constraint("DistanceY", 75, 2, 75, 1, Q("4.5 mm")))
sketch1.addConstraint(Sketcher.Constraint("DistanceX", 0, 3, -1, 1, Q("8.000001 mm")))
sketch1.addConstraint(Sketcher.Constraint("DistanceX", -1, 1, 19, 3, Q("8.000001 mm")))
sketch1.addConstraint(Sketcher.Constraint("DistanceX", -1, 1, 38, 3, Q("8.000001 mm")))
sketch1.addConstraint(Sketcher.Constraint("DistanceX", 57, 3, -1, 1, Q("8.000001 mm")))
sketch1.addConstraint(Sketcher.Constraint("DistanceX", 0, 2, -1, 1, Q("8 mm")))
sketch1.addConstraint(Sketcher.Constraint("DistanceX", -1, 1, 12, 2, Q("6 mm")))
sketch1.addConstraint(Sketcher.Constraint("DistanceX", -1, 1, 28, 2, Q("4 mm")))
sketch1.addConstraint(Sketcher.Constraint("DistanceX", -1, 1, 38, 2, Q("8 mm")))
sketch1.addConstraint(Sketcher.Constraint("DistanceX", 50, 2, -1, 1, Q("6 mm")))
sketch1.addConstraint(Sketcher.Constraint("DistanceX", 66, 2, -1, 1, Q("4 mm")))
sketch1.addConstraint(Sketcher.Constraint("DistanceX", -1, 1, 77, 1, Q("3 mm")))
sketch1.addConstraint(Sketcher.Constraint("DistanceX", 7, 2, -1, 1, Q("3.5 mm")))
sketch1.addConstraint(Sketcher.Constraint("DistanceX", -1, 1, 10, 2, Q("0.5 mm")))
sketch1.addConstraint(Sketcher.Constraint("DistanceX", -1, 1, 26, 2, Q("4.5 mm")))
sketch1.addConstraint(Sketcher.Constraint("DistanceX", -1, 1, 29, 2, Q("4.5 mm")))
sketch1.addConstraint(Sketcher.Constraint("DistanceX", -1, 1, 45, 2, Q("3.5 mm")))
sketch1.addConstraint(Sketcher.Constraint("DistanceX", 48, 2, -1, 1, Q("0.5 mm")))
sketch1.addConstraint(Sketcher.Constraint("DistanceX", 64, 2, -1, 1, Q("4.5 mm")))
sketch1.addConstraint(Sketcher.Constraint("DistanceX", 67, 2, -1, 1, Q("4.5 mm")))
sketch1.addConstraint(Sketcher.Constraint("Radius", 76, Q("3.000021 mm")))
sketch1.addConstraint(Sketcher.Constraint("Radius", 79, Q("3.000021 mm")))
sketch1.addConstraint(Sketcher.Constraint("Radius", 81, Q("3.000021 mm")))
sketch1.addConstraint(Sketcher.Constraint("Radius", 83, Q("3.000021 mm")))
sketch1.addConstraint(Sketcher.Constraint("DistanceY", -1, 1, 38, 3, Q("8.008048 mm")))
sketch1.addConstraint(Sketcher.Constraint("DistanceY", -1, 1, 57, 3, Q("8.008048 mm")))
sketch1.addConstraint(Sketcher.Constraint("DistanceY", -1, 1, 76, 3, Q("0.008032 mm")))
sketch1.addConstraint(Sketcher.Constraint("DistanceY", 78, 1, -1, 1, Q("1.73005 mm")))
sketch1.addConstraint(Sketcher.Constraint("DistanceY", 81, 1, -1, 1, Q("1.73005 mm")))
sketch1.addConstraint(Sketcher.Constraint("DistanceY", -1, 1, 83, 1, Q("2.45325 mm")))
sketch1.addConstraint(Sketcher.Constraint("DistanceY", -1, 1, 84, 1, Q("2.45325 mm")))
sketch1.addConstraint(Sketcher.Constraint("Distance", 7, Q("3.535534 mm")))
sketch1.addConstraint(Sketcher.Constraint("Distance", 9, Q("0.707107 mm")))
sketch1.addConstraint(Sketcher.Constraint("Distance", 10, Q("0.707107 mm")))
sketch1.addConstraint(Sketcher.Constraint("Distance", 12, Q("3.535534 mm")))
sketch1.addConstraint(Sketcher.Constraint("Distance", 26, Q("3.535534 mm")))
sketch1.addConstraint(Sketcher.Constraint("Distance", 28, Q("0.707107 mm")))
sketch1.addConstraint(Sketcher.Constraint("Distance", 29, Q("0.707107 mm")))
sketch1.addConstraint(Sketcher.Constraint("Distance", 31, Q("3.535534 mm")))
sketch1.addConstraint(Sketcher.Constraint("Distance", 45, Q("3.535534 mm")))
sketch1.addConstraint(Sketcher.Constraint("Distance", 47, Q("0.707107 mm")))
sketch1.addConstraint(Sketcher.Constraint("Distance", 48, Q("0.707107 mm")))
sketch1.addConstraint(Sketcher.Constraint("Distance", 64, Q("3.535534 mm")))
sketch1.addConstraint(Sketcher.Constraint("Distance", 66, Q("0.707107 mm")))
sketch1.addConstraint(Sketcher.Constraint("Distance", 67, Q("0.707107 mm")))
sketch1.addConstraint(Sketcher.Constraint("Distance", 69, Q("3.535534 mm")))
sketch1.addConstraint(Sketcher.Constraint("DistanceY", 0, 3, -1, 1, Q("7.991954 mm")))
sketch1.addConstraint(Sketcher.Constraint("DistanceY", 19, 2, -1, 1, Q("7.991953 mm")))
sketch1.addConstraint(Sketcher.Constraint("DistanceY", -1, 1, 57, 2, Q("8.008047 mm")))
sketch1.addConstraint(Sketcher.Constraint("DistanceX", -1, 1, 76, 1, Q("2.445203 mm")))
sketch1.addConstraint(Sketcher.Constraint("DistanceY", -1, 1, 77, 1, Q("0.008047 mm")))
sketch1.addConstraint(Sketcher.Constraint("DistanceX", -1, 1, 79, 1, Q("1.738097 mm")))
sketch1.addConstraint(Sketcher.Constraint("DistanceX", 80, 1, -1, 1, Q("1.738097 mm")))
sketch1.addConstraint(Sketcher.Constraint("DistanceX", 82, 1, -1, 1, Q("2.445203 mm")))
pad1 = doc.addObject("PartDesign::Pad", "Pad")
body.addObject(pad1)
pad1.Profile = sketch1
pad1.Length = 360

doc.recompute()
